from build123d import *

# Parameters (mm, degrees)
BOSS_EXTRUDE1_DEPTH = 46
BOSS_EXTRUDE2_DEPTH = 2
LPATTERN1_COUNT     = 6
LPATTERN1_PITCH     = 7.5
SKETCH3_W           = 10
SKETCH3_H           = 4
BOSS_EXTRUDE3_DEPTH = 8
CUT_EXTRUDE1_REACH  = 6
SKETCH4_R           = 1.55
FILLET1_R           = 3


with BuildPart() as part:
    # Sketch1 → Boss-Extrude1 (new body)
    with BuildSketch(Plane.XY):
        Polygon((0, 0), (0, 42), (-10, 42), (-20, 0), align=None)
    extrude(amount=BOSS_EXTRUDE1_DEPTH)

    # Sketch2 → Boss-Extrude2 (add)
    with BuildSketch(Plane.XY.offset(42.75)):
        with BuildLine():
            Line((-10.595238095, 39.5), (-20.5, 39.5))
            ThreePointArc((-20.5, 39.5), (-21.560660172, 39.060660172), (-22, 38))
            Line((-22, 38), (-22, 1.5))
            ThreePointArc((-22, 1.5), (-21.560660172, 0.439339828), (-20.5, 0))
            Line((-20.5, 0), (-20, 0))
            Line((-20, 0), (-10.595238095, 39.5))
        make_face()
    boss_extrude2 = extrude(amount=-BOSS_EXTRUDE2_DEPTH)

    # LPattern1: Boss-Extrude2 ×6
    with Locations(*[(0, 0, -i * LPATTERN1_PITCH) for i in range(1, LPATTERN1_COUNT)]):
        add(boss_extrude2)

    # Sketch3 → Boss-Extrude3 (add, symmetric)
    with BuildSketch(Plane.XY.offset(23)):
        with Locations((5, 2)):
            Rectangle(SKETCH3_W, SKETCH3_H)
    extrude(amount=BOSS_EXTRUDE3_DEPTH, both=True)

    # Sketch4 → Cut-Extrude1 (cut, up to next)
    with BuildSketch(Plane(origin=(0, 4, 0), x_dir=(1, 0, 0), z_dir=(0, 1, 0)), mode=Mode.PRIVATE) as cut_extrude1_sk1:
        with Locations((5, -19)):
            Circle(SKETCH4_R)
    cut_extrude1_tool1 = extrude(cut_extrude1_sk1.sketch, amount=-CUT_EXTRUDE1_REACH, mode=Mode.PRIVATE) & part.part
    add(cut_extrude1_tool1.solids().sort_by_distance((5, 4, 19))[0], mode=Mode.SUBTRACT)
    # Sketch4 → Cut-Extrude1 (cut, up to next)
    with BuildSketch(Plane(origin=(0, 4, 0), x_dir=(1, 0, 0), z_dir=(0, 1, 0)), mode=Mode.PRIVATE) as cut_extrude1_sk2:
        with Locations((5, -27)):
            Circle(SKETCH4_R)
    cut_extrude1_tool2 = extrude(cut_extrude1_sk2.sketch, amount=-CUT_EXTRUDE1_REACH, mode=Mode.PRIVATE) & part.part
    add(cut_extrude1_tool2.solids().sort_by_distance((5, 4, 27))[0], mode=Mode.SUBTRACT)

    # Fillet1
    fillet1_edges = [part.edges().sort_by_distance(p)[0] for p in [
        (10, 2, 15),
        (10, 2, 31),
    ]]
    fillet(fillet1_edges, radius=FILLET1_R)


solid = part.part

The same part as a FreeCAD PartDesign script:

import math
import FreeCAD as App
import Part
import Sketcher
from FreeCAD import Vector
Q = App.Units.Quantity


def edges_at(feature, points):
    """Names of the edges that pass closest to the given points."""
    edges = feature.Shape.Edges
    near = lambda p: min(range(len(edges)), key=lambda i: edges[i].distToShape(Part.Vertex(*p))[0])
    return sorted({f"Edge{near(p) + 1}" for p in points})

doc = App.newDocument("Part")
body = doc.addObject("PartDesign::Body", "Body")

# Sketch on XY plane
sketch1 = body.newObject("Sketcher::SketchObject", "Sketch")
sketch1.AttachmentSupport = (doc.getObject("XY_Plane"), [""])
sketch1.MapMode = "FlatFace"
sketch1.addGeometry([
    Part.LineSegment(Vector(0, 0, 0), Vector(0, 42, 0)),
    Part.LineSegment(Vector(0, 42, 0), Vector(-10, 42, 0)),
    Part.LineSegment(Vector(-10, 42, 0), Vector(-20, 0, 0)),
    Part.LineSegment(Vector(-20, 0, 0), Vector(0, 0, 0)),
], False)
sketch1.addConstraint([
    Sketcher.Constraint("Coincident", 0, 2, 1, 1),
    Sketcher.Constraint("Coincident", 1, 2, 2, 1),
    Sketcher.Constraint("Coincident", 2, 2, 3, 1),
    Sketcher.Constraint("Coincident", 3, 2, 0, 1),
    Sketcher.Constraint("Vertical", 0),
    Sketcher.Constraint("Horizontal", 1),
    Sketcher.Constraint("Horizontal", 3),
    Sketcher.Constraint("Coincident", 3, 2, -1, 1),
    Sketcher.Constraint("DistanceX", 1, 2, 1, 1, Q("10 mm")),
    Sketcher.Constraint("DistanceX", 3, 1, 3, 2, Q("20 mm")),
    Sketcher.Constraint("DistanceY", 0, 1, 0, 2, Q("42 mm")),
])
pad1 = body.newObject("PartDesign::Pad", "Pad")
pad1.Profile = sketch1
pad1.Length = 46

# Sketch on XY plane
sketch2 = body.newObject("Sketcher::SketchObject", "Sketch001")
sketch2.AttachmentSupport = (doc.getObject("XY_Plane"), [""])
sketch2.MapMode = "FlatFace"
sketch2.AttachmentOffset = App.Placement(Vector(0, 0, 42.75), App.Rotation())
sketch2.addGeometry([
    Part.LineSegment(Vector(-10.6, 39.5, 0), Vector(-20.5, 39.5, 0)),  # 0
    Part.ArcOfCircle(Part.Circle(Vector(-20.5, 38, 0), Vector(0, 0, 1), 1.5), math.radians(90), math.radians(180)),  # 1
    Part.LineSegment(Vector(-22, 38, 0), Vector(-22, 1.5, 0)),  # 2
    Part.ArcOfCircle(Part.Circle(Vector(-20.5, 1.5, 0), Vector(0, 0, 1), 1.5), math.radians(180), math.radians(270)),  # 3
    Part.LineSegment(Vector(-20.5, 0, 0), Vector(-20, 0, 0)),  # 4
    Part.LineSegment(Vector(-20, 0, 0), Vector(-10.6, 39.5, 0)),  # 5
], False)
sketch2.addConstraint([
    Sketcher.Constraint("Tangent", 0, 2, 1, 1),
    Sketcher.Constraint("Tangent", 1, 2, 2, 1),
    Sketcher.Constraint("Tangent", 2, 2, 3, 1),
    Sketcher.Constraint("Tangent", 3, 2, 4, 1),
    Sketcher.Constraint("Coincident", 4, 2, 5, 1),
    Sketcher.Constraint("Coincident", 5, 2, 0, 1),
    Sketcher.Constraint("Horizontal", 0),
    Sketcher.Constraint("Vertical", 2),
    Sketcher.Constraint("Horizontal", 4),
    Sketcher.Constraint("Equal", 1, 3),
    Sketcher.Constraint("PointOnObject", 3, 2, -1),
    Sketcher.Constraint("Radius", 1, Q("1.5 mm")),
    Sketcher.Constraint("DistanceX", 4, 1, 4, 2, Q("0.5 mm")),
    Sketcher.Constraint("DistanceY", 2, 2, 2, 1, Q("36.5 mm")),
    Sketcher.Constraint("DistanceX", 1, 2, -1, 1, Q("22 mm")),
    Sketcher.Constraint("DistanceX", 0, 2, 0, 1, Q("9.904762 mm")),
])
pad2 = body.newObject("PartDesign::Pad", "Pad001")
pad2.Profile = sketch2
pad2.Length = 2
pad2.Reversed = True
doc.recompute()

linearpattern = body.newObject("PartDesign::LinearPattern", "LinearPattern")
linearpattern.Originals = [pad2]
linearpattern.Direction = (doc.getObject("Z_Axis"), [""])
linearpattern.Mode = "offset"
linearpattern.Offset = 7.5
linearpattern.Occurrences = 6
linearpattern.Reversed = True
body.Tip = linearpattern

# Sketch on XY plane
sketch3 = body.newObject("Sketcher::SketchObject", "Sketch002")
sketch3.AttachmentSupport = (doc.getObject("XY_Plane"), [""])
sketch3.MapMode = "FlatFace"
sketch3.AttachmentOffset = App.Placement(Vector(0, 0, 23), App.Rotation())
sketch3.addGeometry([
    Part.LineSegment(Vector(0, 4, 0), Vector(0, 0, 0)),
    Part.LineSegment(Vector(0, 0, 0), Vector(10, 0, 0)),
    Part.LineSegment(Vector(10, 0, 0), Vector(10, 4, 0)),
    Part.LineSegment(Vector(10, 4, 0), Vector(0, 4, 0)),
], False)
sketch3.addConstraint([
    Sketcher.Constraint("Coincident", 0, 2, 1, 1),
    Sketcher.Constraint("Coincident", 1, 2, 2, 1),
    Sketcher.Constraint("Coincident", 2, 2, 3, 1),
    Sketcher.Constraint("Coincident", 3, 2, 0, 1),
    Sketcher.Constraint("Vertical", 0),
    Sketcher.Constraint("Horizontal", 1),
    Sketcher.Constraint("Vertical", 2),
    Sketcher.Constraint("Horizontal", 3),
    Sketcher.Constraint("Coincident", 0, 2, -1, 1),
    Sketcher.Constraint("DistanceX", 1, 1, 1, 2, Q("10 mm")),
    Sketcher.Constraint("DistanceY", 0, 2, 0, 1, Q("4 mm")),
])
pad3 = body.newObject("PartDesign::Pad", "Pad002")
pad3.Profile = sketch3
pad3.Length = 16
pad3.Midplane = True

# Sketch on XZ plane
sketch4 = body.newObject("Sketcher::SketchObject", "Sketch003")
sketch4.AttachmentSupport = (doc.getObject("XZ_Plane"), [""])
sketch4.MapMode = "FlatFace"
sketch4.AttachmentOffset = App.Placement(Vector(0, 0, -4), App.Rotation())
sketch4.addGeometry(Part.Circle(Vector(5, 19, 0), Vector(0, 0, 1), 1.6), False)
sketch4.addConstraint([
    Sketcher.Constraint("Diameter", 0, Q("3.1 mm")),
    Sketcher.Constraint("DistanceX", -1, 1, 0, 3, Q("5 mm")),
    Sketcher.Constraint("DistanceY", -1, 1, 0, 3, Q("19 mm")),
])
pocket1 = body.newObject("PartDesign::Pocket", "Pocket")
pocket1.Profile = sketch4
pocket1.Type = "UpToFirst"
pocket1.Reversed = True

# Sketch on XZ plane
sketch5 = body.newObject("Sketcher::SketchObject", "Sketch004")
sketch5.AttachmentSupport = (doc.getObject("XZ_Plane"), [""])
sketch5.MapMode = "FlatFace"
sketch5.AttachmentOffset = App.Placement(Vector(0, 0, -4), App.Rotation())
sketch5.addGeometry(Part.Circle(Vector(5, 27, 0), Vector(0, 0, 1), 1.6), False)
sketch5.addConstraint([
    Sketcher.Constraint("Diameter", 0, Q("3.1 mm")),
    Sketcher.Constraint("DistanceX", -1, 1, 0, 3, Q("5 mm")),
    Sketcher.Constraint("DistanceY", -1, 1, 0, 3, Q("27 mm")),
])
pocket2 = body.newObject("PartDesign::Pocket", "Pocket001")
pocket2.Profile = sketch5
pocket2.Type = "UpToFirst"
pocket2.Reversed = True
doc.recompute()

fillet = body.newObject("PartDesign::Fillet", "Fillet")
fillet.Base = (pocket2, edges_at(pocket2, [(10, 2, 15), (10, 2, 31)]))
fillet.Radius = 3

doc.recompute()
